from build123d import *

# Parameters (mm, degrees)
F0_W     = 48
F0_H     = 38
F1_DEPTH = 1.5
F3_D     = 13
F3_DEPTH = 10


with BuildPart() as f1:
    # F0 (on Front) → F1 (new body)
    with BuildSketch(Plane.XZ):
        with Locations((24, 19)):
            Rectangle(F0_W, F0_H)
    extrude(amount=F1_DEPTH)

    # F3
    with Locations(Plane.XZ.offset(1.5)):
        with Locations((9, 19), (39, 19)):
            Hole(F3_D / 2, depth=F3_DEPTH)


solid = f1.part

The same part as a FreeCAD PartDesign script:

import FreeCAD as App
import Part
import Sketcher
from FreeCAD import Vector
Q = App.Units.Quantity


def add_polygon(sketch, points):
    """Adds a closed chain of lines whose ends are joined by coincident constraints."""
    first, n = sketch.GeometryCount, len(points)
    for a, b in zip(points, points[1:] + points[:1]):
        sketch.addGeometry(Part.LineSegment(App.Vector(*a, 0), App.Vector(*b, 0)), False)
    for i in range(n):
        sketch.addConstraint(Sketcher.Constraint("Coincident", first + i, 2, first + (i + 1) % n, 1))

doc = App.newDocument("Part")
body = doc.addObject("PartDesign::Body", "Body")

# Sketch on XZ plane
sketch1 = doc.addObject("Sketcher::SketchObject", "Sketch")
body.addObject(sketch1)
sketch1.AttachmentSupport = (doc.XZ_Plane, [""])
sketch1.MapMode = "FlatFace"
add_polygon(sketch1, [(0, 38), (0, 0), (48, 0), (48, 38)])  # lines 0-3
sketch1.addConstraint(Sketcher.Constraint("Vertical", 0))
sketch1.addConstraint(Sketcher.Constraint("Horizontal", 1))
sketch1.addConstraint(Sketcher.Constraint("Vertical", 2))
sketch1.addConstraint(Sketcher.Constraint("Horizontal", 3))
sketch1.addConstraint(Sketcher.Constraint("Coincident", 0, 2, -1, 1))
sketch1.addConstraint(Sketcher.Constraint("DistanceX", 1, 1, 1, 2, Q("48 mm")))
sketch1.addConstraint(Sketcher.Constraint("DistanceY", 0, 2, 0, 1, Q("38 mm")))
pad1 = doc.addObject("PartDesign::Pad", "Pad")
body.addObject(pad1)
pad1.Profile = sketch1
pad1.Length = 1.5

# Sketch on XZ plane
sketch2 = doc.addObject("Sketcher::SketchObject", "Sketch001")
body.addObject(sketch2)
sketch2.AttachmentSupport = (doc.XZ_Plane, [""])
sketch2.MapMode = "FlatFace"
sketch2.AttachmentOffset = App.Placement(Vector(0, 0, 1.5), App.Rotation())
sketch2.addGeometry(Part.Circle(Vector(9, 19, 0), Vector(0, 0, 1), 6.5), False)
sketch2.addGeometry(Part.Circle(Vector(39, 19, 0), Vector(0, 0, 1), 6.5), False)
sketch2.addConstraint(Sketcher.Constraint("Equal", 0, 1))
sketch2.addConstraint(Sketcher.Constraint("Horizontal", 0, 3, 1, 3))
sketch2.addConstraint(Sketcher.Constraint("Diameter", 0, Q("13 mm")))
sketch2.addConstraint(Sketcher.Constraint("DistanceX", -1, 1, 0, 3, Q("9 mm")))
sketch2.addConstraint(Sketcher.Constraint("DistanceY", -1, 1, 0, 3, Q("19 mm")))
sketch2.addConstraint(Sketcher.Constraint("DistanceX", -1, 1, 1, 3, Q("39 mm")))
doc.recompute()
hole = doc.addObject("PartDesign::Hole", "Hole")
body.addObject(hole)
hole.Profile = sketch2
hole.ThreadType = "None"
hole.Diameter = 13
hole.DepthType = "Dimension"
hole.Depth = 10
hole.DrillPoint = "Flat"

doc.recompute()
